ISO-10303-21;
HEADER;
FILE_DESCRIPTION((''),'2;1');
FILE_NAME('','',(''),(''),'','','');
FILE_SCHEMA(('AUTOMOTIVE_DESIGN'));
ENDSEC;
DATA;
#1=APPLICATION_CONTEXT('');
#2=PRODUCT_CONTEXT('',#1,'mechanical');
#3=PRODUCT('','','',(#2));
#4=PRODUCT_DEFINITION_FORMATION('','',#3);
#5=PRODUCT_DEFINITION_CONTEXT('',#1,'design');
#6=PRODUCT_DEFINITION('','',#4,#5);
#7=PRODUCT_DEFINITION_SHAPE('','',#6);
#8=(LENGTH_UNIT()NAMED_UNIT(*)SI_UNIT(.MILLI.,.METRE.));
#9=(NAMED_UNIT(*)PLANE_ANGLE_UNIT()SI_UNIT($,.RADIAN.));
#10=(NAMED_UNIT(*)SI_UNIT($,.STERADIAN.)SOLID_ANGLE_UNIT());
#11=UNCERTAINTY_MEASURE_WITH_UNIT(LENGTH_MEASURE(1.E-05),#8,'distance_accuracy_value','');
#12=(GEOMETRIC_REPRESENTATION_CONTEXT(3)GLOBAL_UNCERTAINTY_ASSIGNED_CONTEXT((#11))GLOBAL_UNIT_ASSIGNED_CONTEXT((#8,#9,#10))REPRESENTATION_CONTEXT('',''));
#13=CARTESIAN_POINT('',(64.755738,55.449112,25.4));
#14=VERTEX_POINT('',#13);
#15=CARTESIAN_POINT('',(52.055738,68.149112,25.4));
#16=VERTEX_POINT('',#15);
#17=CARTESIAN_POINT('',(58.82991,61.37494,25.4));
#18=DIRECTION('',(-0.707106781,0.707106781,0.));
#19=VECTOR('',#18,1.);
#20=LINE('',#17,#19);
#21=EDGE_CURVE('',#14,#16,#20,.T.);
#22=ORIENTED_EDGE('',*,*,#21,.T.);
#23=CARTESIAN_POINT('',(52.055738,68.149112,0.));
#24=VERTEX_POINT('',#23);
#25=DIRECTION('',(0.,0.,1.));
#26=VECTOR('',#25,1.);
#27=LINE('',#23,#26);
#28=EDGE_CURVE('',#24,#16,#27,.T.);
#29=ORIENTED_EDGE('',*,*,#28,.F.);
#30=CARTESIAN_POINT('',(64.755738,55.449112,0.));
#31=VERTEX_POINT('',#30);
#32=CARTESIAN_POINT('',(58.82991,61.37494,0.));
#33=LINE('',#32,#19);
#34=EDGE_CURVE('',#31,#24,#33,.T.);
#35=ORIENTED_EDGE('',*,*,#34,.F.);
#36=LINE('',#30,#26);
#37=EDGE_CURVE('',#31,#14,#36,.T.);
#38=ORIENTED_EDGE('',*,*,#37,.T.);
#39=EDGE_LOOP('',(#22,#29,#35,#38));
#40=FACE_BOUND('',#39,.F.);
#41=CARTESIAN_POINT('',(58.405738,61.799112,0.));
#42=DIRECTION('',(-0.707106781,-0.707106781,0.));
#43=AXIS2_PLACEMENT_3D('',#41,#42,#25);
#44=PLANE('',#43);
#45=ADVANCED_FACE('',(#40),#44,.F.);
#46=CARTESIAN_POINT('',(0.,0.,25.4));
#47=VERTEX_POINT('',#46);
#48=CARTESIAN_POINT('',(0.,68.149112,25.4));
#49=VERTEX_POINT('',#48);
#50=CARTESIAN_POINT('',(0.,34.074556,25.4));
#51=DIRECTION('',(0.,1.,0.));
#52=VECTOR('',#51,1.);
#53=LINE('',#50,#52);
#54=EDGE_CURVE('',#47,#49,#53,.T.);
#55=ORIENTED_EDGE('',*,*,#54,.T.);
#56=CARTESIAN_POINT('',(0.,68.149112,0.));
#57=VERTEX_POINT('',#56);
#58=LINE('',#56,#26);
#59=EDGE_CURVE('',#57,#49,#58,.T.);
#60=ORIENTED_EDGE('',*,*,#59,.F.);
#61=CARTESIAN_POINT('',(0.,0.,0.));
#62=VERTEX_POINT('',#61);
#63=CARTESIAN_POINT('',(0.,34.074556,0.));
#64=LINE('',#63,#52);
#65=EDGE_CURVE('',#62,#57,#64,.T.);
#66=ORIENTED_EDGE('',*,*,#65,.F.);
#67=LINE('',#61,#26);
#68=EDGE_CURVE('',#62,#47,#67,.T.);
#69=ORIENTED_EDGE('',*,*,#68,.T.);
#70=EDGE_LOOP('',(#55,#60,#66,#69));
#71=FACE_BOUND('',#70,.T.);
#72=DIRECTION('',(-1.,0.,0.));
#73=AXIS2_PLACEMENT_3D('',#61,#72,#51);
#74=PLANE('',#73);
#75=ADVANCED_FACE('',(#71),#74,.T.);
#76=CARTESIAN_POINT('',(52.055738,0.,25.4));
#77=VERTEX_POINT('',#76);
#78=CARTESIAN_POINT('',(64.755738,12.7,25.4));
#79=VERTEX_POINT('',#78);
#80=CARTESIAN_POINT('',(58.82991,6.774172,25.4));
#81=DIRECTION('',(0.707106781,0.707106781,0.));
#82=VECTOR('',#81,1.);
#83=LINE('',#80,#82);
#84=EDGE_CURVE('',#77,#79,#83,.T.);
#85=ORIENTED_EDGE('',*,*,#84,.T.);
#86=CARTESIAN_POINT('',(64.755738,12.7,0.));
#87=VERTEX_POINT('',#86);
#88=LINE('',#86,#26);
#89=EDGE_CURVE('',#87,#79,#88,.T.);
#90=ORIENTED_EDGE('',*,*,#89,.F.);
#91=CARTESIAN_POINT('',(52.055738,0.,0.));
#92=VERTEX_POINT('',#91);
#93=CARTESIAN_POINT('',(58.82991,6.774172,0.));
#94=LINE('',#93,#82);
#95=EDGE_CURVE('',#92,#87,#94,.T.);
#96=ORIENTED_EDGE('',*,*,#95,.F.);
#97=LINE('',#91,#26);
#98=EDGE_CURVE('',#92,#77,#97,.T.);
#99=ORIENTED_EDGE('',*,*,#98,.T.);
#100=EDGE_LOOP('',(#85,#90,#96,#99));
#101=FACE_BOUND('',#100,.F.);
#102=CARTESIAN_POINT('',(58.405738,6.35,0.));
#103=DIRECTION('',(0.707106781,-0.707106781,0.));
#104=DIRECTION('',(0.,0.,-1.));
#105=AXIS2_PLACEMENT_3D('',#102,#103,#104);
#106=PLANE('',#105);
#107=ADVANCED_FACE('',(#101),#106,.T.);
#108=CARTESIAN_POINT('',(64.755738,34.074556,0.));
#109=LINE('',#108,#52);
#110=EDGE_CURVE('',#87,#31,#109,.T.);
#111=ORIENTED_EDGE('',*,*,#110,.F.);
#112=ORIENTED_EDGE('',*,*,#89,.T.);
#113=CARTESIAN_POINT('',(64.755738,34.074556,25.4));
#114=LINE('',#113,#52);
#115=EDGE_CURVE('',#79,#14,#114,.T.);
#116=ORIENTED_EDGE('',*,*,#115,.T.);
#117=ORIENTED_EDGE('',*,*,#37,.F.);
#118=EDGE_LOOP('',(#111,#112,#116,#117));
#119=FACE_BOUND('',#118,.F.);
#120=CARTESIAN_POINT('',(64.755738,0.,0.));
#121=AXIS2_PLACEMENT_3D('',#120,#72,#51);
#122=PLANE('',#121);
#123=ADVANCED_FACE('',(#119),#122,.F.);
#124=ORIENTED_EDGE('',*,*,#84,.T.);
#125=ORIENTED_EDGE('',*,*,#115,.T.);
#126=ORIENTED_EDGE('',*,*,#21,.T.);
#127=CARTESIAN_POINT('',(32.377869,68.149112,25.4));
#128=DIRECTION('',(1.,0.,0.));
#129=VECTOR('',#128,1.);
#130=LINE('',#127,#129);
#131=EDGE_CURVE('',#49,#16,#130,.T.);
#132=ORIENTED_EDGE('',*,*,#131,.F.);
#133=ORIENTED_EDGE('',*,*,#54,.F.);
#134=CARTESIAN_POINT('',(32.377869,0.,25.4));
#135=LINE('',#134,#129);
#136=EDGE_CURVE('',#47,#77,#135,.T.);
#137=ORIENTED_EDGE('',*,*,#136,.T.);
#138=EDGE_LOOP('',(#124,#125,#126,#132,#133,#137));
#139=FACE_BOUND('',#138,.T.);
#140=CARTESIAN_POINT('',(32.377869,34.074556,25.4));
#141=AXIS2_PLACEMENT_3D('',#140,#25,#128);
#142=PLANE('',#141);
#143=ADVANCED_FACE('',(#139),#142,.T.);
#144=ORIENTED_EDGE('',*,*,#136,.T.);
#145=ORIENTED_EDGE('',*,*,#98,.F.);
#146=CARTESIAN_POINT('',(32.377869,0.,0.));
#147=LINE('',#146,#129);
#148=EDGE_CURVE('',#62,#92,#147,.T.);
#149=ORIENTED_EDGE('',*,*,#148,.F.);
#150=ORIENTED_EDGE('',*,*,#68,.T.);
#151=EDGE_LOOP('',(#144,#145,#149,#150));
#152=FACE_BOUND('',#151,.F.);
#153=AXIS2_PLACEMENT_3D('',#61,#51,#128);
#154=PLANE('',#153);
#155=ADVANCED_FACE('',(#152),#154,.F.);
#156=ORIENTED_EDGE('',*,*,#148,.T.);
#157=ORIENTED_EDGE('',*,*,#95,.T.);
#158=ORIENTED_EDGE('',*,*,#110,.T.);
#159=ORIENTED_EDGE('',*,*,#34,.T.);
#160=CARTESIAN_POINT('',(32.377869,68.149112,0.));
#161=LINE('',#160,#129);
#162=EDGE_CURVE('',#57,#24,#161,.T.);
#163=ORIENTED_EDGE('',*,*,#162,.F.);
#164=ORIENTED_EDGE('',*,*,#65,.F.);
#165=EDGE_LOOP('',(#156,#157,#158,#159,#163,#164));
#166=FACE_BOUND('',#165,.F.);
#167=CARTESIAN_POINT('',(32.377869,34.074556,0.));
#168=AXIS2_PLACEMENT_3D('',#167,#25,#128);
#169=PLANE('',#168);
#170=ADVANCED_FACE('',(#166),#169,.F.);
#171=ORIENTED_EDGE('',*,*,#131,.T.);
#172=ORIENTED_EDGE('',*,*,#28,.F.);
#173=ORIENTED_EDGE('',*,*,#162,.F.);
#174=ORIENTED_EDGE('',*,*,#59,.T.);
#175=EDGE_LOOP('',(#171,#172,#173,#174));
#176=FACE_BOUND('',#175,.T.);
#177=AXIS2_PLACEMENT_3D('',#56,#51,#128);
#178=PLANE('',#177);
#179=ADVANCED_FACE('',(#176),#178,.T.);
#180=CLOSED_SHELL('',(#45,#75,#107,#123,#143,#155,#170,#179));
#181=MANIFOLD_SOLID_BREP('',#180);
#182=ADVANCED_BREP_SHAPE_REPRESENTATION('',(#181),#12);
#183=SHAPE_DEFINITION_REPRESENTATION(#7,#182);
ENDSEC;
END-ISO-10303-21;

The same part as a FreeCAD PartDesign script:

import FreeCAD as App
import Part
import Sketcher

V = App.Vector
Q = App.Units.Quantity


def edges_at(feature, points):
    """Names of the edges that pass closest to the given points."""
    edges = feature.Shape.Edges
    near = lambda p: min(range(len(edges)), key=lambda i: edges[i].distToShape(Part.Vertex(*p))[0])
    return sorted({f"Edge{near(p) + 1}" for p in points})

doc = App.newDocument("Part")
body = doc.addObject("PartDesign::Body", "Body")

# Sketch on XY plane
sketch1 = doc.addObject("Sketcher::SketchObject", "Sketch")
body.addObject(sketch1)
sketch1.AttachmentSupport = (doc.XY_Plane, [""])
sketch1.MapMode = "FlatFace"
sketch1.addGeometry([
    Part.LineSegment(V(0, 68, 0), V(0, 0, 0)),
    Part.LineSegment(V(0, 0, 0), V(65, 0, 0)),
    Part.LineSegment(V(65, 0, 0), V(65, 68, 0)),
    Part.LineSegment(V(65, 68, 0), V(0, 68, 0)),
], False)
sketch1.addConstraint([
    Sketcher.Constraint("Coincident", 0, 2, 1, 1),
    Sketcher.Constraint("Coincident", 1, 2, 2, 1),
    Sketcher.Constraint("Coincident", 2, 2, 3, 1),
    Sketcher.Constraint("Coincident", 3, 2, 0, 1),
    Sketcher.Constraint("Vertical", 0),
    Sketcher.Constraint("Horizontal", 1),
    Sketcher.Constraint("Vertical", 2),
    Sketcher.Constraint("Horizontal", 3),
    Sketcher.Constraint("Coincident", 0, 2, -1, 1),
    Sketcher.Constraint("DistanceX", 1, 1, 1, 2, 64.755738),
    Sketcher.Constraint("DistanceY", 0, 2, 0, 1, 68.149112),
])
pad1 = doc.addObject("PartDesign::Pad", "Pad")
body.addObject(pad1)
pad1.Profile = sketch1
pad1.Length = Q("1 in")
doc.recompute()

chamfer = doc.addObject("PartDesign::Chamfer", "Chamfer")
body.addObject(chamfer)
chamfer.Base = (pad1, edges_at(pad1, [(64.756, 0, 12.7), (64.756, 68.149, 12.7)]))
chamfer.Size = Q("0.5 in")

doc.recompute()
